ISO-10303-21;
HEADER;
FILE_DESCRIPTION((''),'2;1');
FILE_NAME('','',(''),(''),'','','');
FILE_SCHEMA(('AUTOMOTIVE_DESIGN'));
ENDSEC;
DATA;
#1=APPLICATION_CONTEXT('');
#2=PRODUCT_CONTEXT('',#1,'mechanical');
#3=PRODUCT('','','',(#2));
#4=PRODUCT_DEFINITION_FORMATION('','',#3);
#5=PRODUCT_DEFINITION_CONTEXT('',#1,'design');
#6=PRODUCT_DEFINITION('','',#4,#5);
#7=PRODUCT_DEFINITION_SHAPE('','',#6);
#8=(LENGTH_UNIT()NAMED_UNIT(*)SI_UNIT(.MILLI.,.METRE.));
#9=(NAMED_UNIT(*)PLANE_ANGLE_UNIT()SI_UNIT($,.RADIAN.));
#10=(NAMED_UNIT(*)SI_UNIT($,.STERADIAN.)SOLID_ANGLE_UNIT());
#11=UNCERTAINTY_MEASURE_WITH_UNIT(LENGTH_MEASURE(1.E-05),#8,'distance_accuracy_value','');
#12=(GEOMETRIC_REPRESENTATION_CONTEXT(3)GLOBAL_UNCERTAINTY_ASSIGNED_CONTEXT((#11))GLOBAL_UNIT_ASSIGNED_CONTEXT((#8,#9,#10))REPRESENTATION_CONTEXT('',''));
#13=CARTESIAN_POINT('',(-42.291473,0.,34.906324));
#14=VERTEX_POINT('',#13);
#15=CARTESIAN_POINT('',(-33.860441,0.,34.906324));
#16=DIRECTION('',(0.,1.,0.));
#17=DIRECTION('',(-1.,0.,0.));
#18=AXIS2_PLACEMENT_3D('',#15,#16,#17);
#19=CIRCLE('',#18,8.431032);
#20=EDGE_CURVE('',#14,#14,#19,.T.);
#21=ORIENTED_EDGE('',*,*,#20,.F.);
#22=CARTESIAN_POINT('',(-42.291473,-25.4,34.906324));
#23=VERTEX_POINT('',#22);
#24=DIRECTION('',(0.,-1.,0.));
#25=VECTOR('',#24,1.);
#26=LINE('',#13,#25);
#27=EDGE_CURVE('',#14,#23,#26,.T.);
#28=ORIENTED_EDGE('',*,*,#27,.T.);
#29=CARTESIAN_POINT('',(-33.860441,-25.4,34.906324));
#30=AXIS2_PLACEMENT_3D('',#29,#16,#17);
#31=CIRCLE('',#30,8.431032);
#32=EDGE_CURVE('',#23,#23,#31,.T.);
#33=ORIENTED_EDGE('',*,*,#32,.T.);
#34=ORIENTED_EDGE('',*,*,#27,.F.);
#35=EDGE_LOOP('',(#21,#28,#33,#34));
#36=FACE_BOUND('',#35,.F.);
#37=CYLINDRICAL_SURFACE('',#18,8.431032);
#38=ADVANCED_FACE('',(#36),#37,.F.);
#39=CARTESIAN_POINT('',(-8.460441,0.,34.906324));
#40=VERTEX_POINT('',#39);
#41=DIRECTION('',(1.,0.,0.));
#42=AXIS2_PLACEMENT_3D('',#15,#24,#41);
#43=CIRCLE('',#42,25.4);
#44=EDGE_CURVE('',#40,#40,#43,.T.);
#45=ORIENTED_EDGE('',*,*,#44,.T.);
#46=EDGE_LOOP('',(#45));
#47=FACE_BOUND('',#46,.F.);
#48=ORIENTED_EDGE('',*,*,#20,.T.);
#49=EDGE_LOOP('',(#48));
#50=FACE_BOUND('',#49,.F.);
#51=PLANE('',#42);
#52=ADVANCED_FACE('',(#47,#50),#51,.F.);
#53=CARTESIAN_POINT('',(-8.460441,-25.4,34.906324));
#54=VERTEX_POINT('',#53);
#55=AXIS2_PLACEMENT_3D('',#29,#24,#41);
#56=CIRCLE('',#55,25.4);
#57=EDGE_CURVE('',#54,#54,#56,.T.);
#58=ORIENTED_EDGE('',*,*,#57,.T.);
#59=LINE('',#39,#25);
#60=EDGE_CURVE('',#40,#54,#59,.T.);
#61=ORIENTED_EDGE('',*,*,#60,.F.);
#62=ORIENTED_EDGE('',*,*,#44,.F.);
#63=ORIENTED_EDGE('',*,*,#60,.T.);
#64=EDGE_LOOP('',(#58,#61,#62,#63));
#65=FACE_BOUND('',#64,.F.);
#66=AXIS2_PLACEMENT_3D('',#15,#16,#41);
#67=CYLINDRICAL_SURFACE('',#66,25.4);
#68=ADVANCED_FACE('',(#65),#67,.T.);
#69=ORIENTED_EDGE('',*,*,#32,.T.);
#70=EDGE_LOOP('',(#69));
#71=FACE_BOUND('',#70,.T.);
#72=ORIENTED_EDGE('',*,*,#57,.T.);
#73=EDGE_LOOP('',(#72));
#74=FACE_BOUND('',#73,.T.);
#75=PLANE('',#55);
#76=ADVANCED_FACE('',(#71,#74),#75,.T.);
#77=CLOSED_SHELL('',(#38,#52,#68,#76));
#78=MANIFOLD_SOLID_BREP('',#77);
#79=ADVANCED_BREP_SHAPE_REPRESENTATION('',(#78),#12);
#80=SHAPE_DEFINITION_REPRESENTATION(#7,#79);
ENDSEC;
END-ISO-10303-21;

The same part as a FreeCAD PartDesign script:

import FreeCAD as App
import Part
import Sketcher
from FreeCAD import Vector
Q = App.Units.Quantity

doc = App.newDocument("Part")
body = doc.addObject("PartDesign::Body", "Body")

# Sketch on XZ plane
sketch1 = doc.addObject("Sketcher::SketchObject", "Sketch")
body.addObject(sketch1)
sketch1.AttachmentSupport = (doc.XZ_Plane, [""])
sketch1.MapMode = "FlatFace"
sketch1.addGeometry(Part.Circle(Vector(-34, 35, 0), Vector(0, 0, 1), 25), False)
sketch1.addConstraint(Sketcher.Constraint("Diameter", 0, Q("2 in")))
sketch1.addConstraint(Sketcher.Constraint("DistanceX", 0, 3, -1, 1, Q("33.860441 mm")))
sketch1.addConstraint(Sketcher.Constraint("DistanceY", -1, 1, 0, 3, Q("34.906324 mm")))
pad1 = doc.addObject("PartDesign::Pad", "Pad")
body.addObject(pad1)
pad1.Profile = sketch1
pad1.Length = Q("1 in")

# Sketch on XZ plane
sketch2 = doc.addObject("Sketcher::SketchObject", "Sketch001")
body.addObject(sketch2)
sketch2.AttachmentSupport = (doc.XZ_Plane, [""])
sketch2.MapMode = "FlatFace"
sketch2.addGeometry(Part.Circle(Vector(-34, 35, 0), Vector(0, 0, 1), 8), False)
sketch2.addConstraint(Sketcher.Constraint("Diameter", 0, Q("16.862064 mm")))
sketch2.addConstraint(Sketcher.Constraint("DistanceX", 0, 3, -1, 1, Q("33.860441 mm")))
sketch2.addConstraint(Sketcher.Constraint("DistanceY", -1, 1, 0, 3, Q("34.906324 mm")))
pocket1 = doc.addObject("PartDesign::Pocket", "Pocket")
body.addObject(pocket1)
pocket1.Profile = sketch2
pocket1.Length = Q("1 in")
pocket1.Reversed = True

doc.recompute()
